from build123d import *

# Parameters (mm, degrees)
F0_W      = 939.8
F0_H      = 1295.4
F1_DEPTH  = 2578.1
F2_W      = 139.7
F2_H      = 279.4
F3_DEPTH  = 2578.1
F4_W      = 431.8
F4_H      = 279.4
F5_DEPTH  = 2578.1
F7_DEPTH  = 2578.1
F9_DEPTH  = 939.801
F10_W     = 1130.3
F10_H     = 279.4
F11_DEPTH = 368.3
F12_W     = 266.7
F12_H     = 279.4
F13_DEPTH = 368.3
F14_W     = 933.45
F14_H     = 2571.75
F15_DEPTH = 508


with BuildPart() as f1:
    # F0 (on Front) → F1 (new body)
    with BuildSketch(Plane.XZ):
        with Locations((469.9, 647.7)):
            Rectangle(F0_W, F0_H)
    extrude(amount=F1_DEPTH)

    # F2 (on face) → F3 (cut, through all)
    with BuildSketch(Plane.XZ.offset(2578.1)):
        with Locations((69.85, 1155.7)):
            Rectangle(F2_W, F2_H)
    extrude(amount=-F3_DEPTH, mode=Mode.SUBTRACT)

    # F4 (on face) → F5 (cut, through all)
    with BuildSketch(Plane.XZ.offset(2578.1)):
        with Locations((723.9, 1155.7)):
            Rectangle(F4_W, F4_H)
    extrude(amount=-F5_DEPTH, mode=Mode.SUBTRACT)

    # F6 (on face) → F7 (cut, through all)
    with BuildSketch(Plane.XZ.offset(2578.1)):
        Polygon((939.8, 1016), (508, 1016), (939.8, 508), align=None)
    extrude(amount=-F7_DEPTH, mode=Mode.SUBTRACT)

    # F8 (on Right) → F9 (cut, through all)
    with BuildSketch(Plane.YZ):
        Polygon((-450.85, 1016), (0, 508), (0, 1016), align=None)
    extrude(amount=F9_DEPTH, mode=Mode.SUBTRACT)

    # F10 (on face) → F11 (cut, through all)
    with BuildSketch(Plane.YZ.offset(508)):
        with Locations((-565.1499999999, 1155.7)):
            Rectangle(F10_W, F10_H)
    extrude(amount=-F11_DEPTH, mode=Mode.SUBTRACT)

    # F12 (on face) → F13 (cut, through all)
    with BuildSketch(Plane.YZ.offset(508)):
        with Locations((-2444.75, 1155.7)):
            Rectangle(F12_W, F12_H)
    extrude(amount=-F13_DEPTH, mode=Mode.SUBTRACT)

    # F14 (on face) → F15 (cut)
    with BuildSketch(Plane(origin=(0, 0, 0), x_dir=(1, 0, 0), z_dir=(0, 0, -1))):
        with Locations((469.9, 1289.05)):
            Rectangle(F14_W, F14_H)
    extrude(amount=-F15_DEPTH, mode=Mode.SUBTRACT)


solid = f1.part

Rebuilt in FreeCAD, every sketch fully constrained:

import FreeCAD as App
import Part
import Sketcher

V = App.Vector
Q = App.Units.Quantity

doc = App.newDocument("Part")
body = doc.addObject("PartDesign::Body", "Body")

# Sketch on XZ plane
sketch1 = body.newObject("Sketcher::SketchObject", "Sketch")
sketch1.AttachmentSupport = (doc.getObject("XZ_Plane"), [""])
sketch1.MapMode = "FlatFace"
sketch1.addGeometry(Part.LineSegment(V(0, 1295, 0), V(0, 0, 0)), False)
sketch1.addGeometry(Part.LineSegment(V(0, 0, 0), V(940, 0, 0)), False)
sketch1.addGeometry(Part.LineSegment(V(940, 0, 0), V(940, 1295, 0)), False)
sketch1.addGeometry(Part.LineSegment(V(940, 1295, 0), V(0, 1295, 0)), False)
sketch1.addConstraint(Sketcher.Constraint("Coincident", 0, 2, 1, 1))
sketch1.addConstraint(Sketcher.Constraint("Coincident", 1, 2, 2, 1))
sketch1.addConstraint(Sketcher.Constraint("Coincident", 2, 2, 3, 1))
sketch1.addConstraint(Sketcher.Constraint("Coincident", 3, 2, 0, 1))
sketch1.addConstraint(Sketcher.Constraint("Vertical", 0))
sketch1.addConstraint(Sketcher.Constraint("Horizontal", 1))
sketch1.addConstraint(Sketcher.Constraint("Vertical", 2))
sketch1.addConstraint(Sketcher.Constraint("Horizontal", 3))
sketch1.addConstraint(Sketcher.Constraint("Coincident", 0, 2, -1, 1))
sketch1.addConstraint(Sketcher.Constraint("DistanceX", 1, 1, 1, 2, Q("37 in")))
sketch1.addConstraint(Sketcher.Constraint("DistanceY", 0, 2, 0, 1, Q("51 in")))
pad1 = body.newObject("PartDesign::Pad", "Pad")
pad1.Profile = sketch1
pad1.Length = Q("101.5 in")

# Sketch on XZ plane
sketch2 = body.newObject("Sketcher::SketchObject", "Sketch001")
sketch2.AttachmentSupport = (doc.getObject("XZ_Plane"), [""])
sketch2.MapMode = "FlatFace"
sketch2.AttachmentOffset = App.Placement(V(0, 0, 101.5 * 25.4), App.Rotation())
sketch2.addGeometry(Part.LineSegment(V(0, 1295, 0), V(0, 1016, 0)), False)
sketch2.addGeometry(Part.LineSegment(V(0, 1016, 0), V(140, 1016, 0)), False)
sketch2.addGeometry(Part.LineSegment(V(140, 1016, 0), V(140, 1295, 0)), False)
sketch2.addGeometry(Part.LineSegment(V(140, 1295, 0), V(0, 1295, 0)), False)
sketch2.addConstraint(Sketcher.Constraint("Coincident", 0, 2, 1, 1))
sketch2.addConstraint(Sketcher.Constraint("Coincident", 1, 2, 2, 1))
sketch2.addConstraint(Sketcher.Constraint("Coincident", 2, 2, 3, 1))
sketch2.addConstraint(Sketcher.Constraint("Coincident", 3, 2, 0, 1))
sketch2.addConstraint(Sketcher.Constraint("Vertical", 0))
sketch2.addConstraint(Sketcher.Constraint("Horizontal", 1))
sketch2.addConstraint(Sketcher.Constraint("Vertical", 2))
sketch2.addConstraint(Sketcher.Constraint("Horizontal", 3))
sketch2.addConstraint(Sketcher.Constraint("PointOnObject", 0, 2, -2))
sketch2.addConstraint(Sketcher.Constraint("DistanceY", 0, 2, 0, 1, Q("11 in")))
sketch2.addConstraint(Sketcher.Constraint("DistanceX", 1, 1, 1, 2, Q("5.5 in")))
sketch2.addConstraint(Sketcher.Constraint("DistanceY", -1, 1, 0, 2, Q("40 in")))
pocket1 = body.newObject("PartDesign::Pocket", "Pocket")
pocket1.Profile = sketch2
pocket1.Type = "ThroughAll"

# Sketch on XZ plane
sketch3 = body.newObject("Sketcher::SketchObject", "Sketch002")
sketch3.AttachmentSupport = (doc.getObject("XZ_Plane"), [""])
sketch3.MapMode = "FlatFace"
sketch3.AttachmentOffset = App.Placement(V(0, 0, 101.5 * 25.4), App.Rotation())
sketch3.addGeometry(Part.LineSegment(V(508, 1295, 0), V(508, 1016, 0)), False)
sketch3.addGeometry(Part.LineSegment(V(508, 1016, 0), V(940, 1016, 0)), False)
sketch3.addGeometry(Part.LineSegment(V(940, 1016, 0), V(940, 1295, 0)), False)
sketch3.addGeometry(Part.LineSegment(V(940, 1295, 0), V(508, 1295, 0)), False)
sketch3.addConstraint(Sketcher.Constraint("Coincident", 0, 2, 1, 1))
sketch3.addConstraint(Sketcher.Constraint("Coincident", 1, 2, 2, 1))
sketch3.addConstraint(Sketcher.Constraint("Coincident", 2, 2, 3, 1))
sketch3.addConstraint(Sketcher.Constraint("Coincident", 3, 2, 0, 1))
sketch3.addConstraint(Sketcher.Constraint("Vertical", 0))
sketch3.addConstraint(Sketcher.Constraint("Horizontal", 1))
sketch3.addConstraint(Sketcher.Constraint("Vertical", 2))
sketch3.addConstraint(Sketcher.Constraint("Horizontal", 3))
sketch3.addConstraint(Sketcher.Constraint("DistanceX", 1, 1, 1, 2, Q("17 in")))
sketch3.addConstraint(Sketcher.Constraint("DistanceY", 0, 2, 0, 1, Q("11 in")))
sketch3.addConstraint(Sketcher.Constraint("DistanceX", -1, 1, 0, 2, Q("20 in")))
sketch3.addConstraint(Sketcher.Constraint("DistanceY", -1, 1, 0, 2, Q("40 in")))
pocket2 = body.newObject("PartDesign::Pocket", "Pocket001")
pocket2.Profile = sketch3
pocket2.Type = "ThroughAll"

# Sketch on XZ plane
sketch4 = body.newObject("Sketcher::SketchObject", "Sketch003")
sketch4.AttachmentSupport = (doc.getObject("XZ_Plane"), [""])
sketch4.MapMode = "FlatFace"
sketch4.AttachmentOffset = App.Placement(V(0, 0, 101.5 * 25.4), App.Rotation())
sketch4.addGeometry(Part.LineSegment(V(940, 1016, 0), V(508, 1016, 0)), False)
sketch4.addGeometry(Part.LineSegment(V(508, 1016, 0), V(940, 508, 0)), False)
sketch4.addGeometry(Part.LineSegment(V(940, 508, 0), V(940, 1016, 0)), False)
sketch4.addConstraint(Sketcher.Constraint("Coincident", 0, 2, 1, 1))
sketch4.addConstraint(Sketcher.Constraint("Coincident", 1, 2, 2, 1))
sketch4.addConstraint(Sketcher.Constraint("Coincident", 2, 2, 0, 1))
sketch4.addConstraint(Sketcher.Constraint("Horizontal", 0))
sketch4.addConstraint(Sketcher.Constraint("Vertical", 2))
sketch4.addConstraint(Sketcher.Constraint("DistanceX", 0, 2, 0, 1, Q("17 in")))
sketch4.addConstraint(Sketcher.Constraint("DistanceY", 2, 1, 2, 2, Q("20 in")))
sketch4.addConstraint(Sketcher.Constraint("DistanceX", -1, 1, 0, 2, Q("20 in")))
sketch4.addConstraint(Sketcher.Constraint("DistanceY", -1, 1, 0, 2, Q("40 in")))
pocket3 = body.newObject("PartDesign::Pocket", "Pocket002")
pocket3.Profile = sketch4
pocket3.Type = "ThroughAll"

# Sketch on YZ plane
sketch5 = body.newObject("Sketcher::SketchObject", "Sketch004")
sketch5.AttachmentSupport = (doc.getObject("YZ_Plane"), [""])
sketch5.MapMode = "FlatFace"
sketch5.addGeometry(Part.LineSegment(V(-451, 1016, 0), V(0, 508, 0)), False)
sketch5.addGeometry(Part.LineSegment(V(0, 508, 0), V(0, 1016, 0)), False)
sketch5.addGeometry(Part.LineSegment(V(0, 1016, 0), V(-451, 1016, 0)), False)
sketch5.addConstraint(Sketcher.Constraint("Coincident", 0, 2, 1, 1))
sketch5.addConstraint(Sketcher.Constraint("Coincident", 1, 2, 2, 1))
sketch5.addConstraint(Sketcher.Constraint("Coincident", 2, 2, 0, 1))
sketch5.addConstraint(Sketcher.Constraint("Vertical", 1))
sketch5.addConstraint(Sketcher.Constraint("Horizontal", 2))
sketch5.addConstraint(Sketcher.Constraint("PointOnObject", 0, 2, -2))
sketch5.addConstraint(Sketcher.Constraint("DistanceY", 1, 1, 1, 2, Q("20 in")))
sketch5.addConstraint(Sketcher.Constraint("DistanceY", -1, 1, 0, 2, Q("20 in")))
sketch5.addConstraint(Sketcher.Constraint("DistanceX", 2, 2, 2, 1, Q("17.75 in")))
pocket4 = body.newObject("PartDesign::Pocket", "Pocket003")
pocket4.Profile = sketch5
pocket4.Type = "ThroughAll"
pocket4.Reversed = True

# Sketch on YZ plane
sketch6 = body.newObject("Sketcher::SketchObject", "Sketch005")
sketch6.AttachmentSupport = (doc.getObject("YZ_Plane"), [""])
sketch6.MapMode = "FlatFace"
sketch6.AttachmentOffset = App.Placement(V(0, 0, 20 * 25.4), App.Rotation())
sketch6.addGeometry(Part.LineSegment(V(-1130, 1295, 0), V(-1130, 1016, 0)), False)
sketch6.addGeometry(Part.LineSegment(V(-1130, 1016, 0), V(0, 1016, 0)), False)
sketch6.addGeometry(Part.LineSegment(V(0, 1016, 0), V(0, 1295, 0)), False)
sketch6.addGeometry(Part.LineSegment(V(0, 1295, 0), V(-1130, 1295, 0)), False)
sketch6.addConstraint(Sketcher.Constraint("Coincident", 0, 2, 1, 1))
sketch6.addConstraint(Sketcher.Constraint("Coincident", 1, 2, 2, 1))
sketch6.addConstraint(Sketcher.Constraint("Coincident", 2, 2, 3, 1))
sketch6.addConstraint(Sketcher.Constraint("Coincident", 3, 2, 0, 1))
sketch6.addConstraint(Sketcher.Constraint("Vertical", 0))
sketch6.addConstraint(Sketcher.Constraint("Horizontal", 1))
sketch6.addConstraint(Sketcher.Constraint("Vertical", 2))
sketch6.addConstraint(Sketcher.Constraint("Horizontal", 3))
sketch6.addConstraint(Sketcher.Constraint("PointOnObject", 1, 2, -2))
sketch6.addConstraint(Sketcher.Constraint("DistanceY", 0, 2, 0, 1, Q("11 in")))
sketch6.addConstraint(Sketcher.Constraint("DistanceX", 1, 1, 1, 2, Q("44.5 in")))
sketch6.addConstraint(Sketcher.Constraint("DistanceY", -1, 1, 0, 2, Q("40 in")))
pocket5 = body.newObject("PartDesign::Pocket", "Pocket004")
pocket5.Profile = sketch6
pocket5.Type = "ThroughAll"

# Sketch on YZ plane
sketch7 = body.newObject("Sketcher::SketchObject", "Sketch006")
sketch7.AttachmentSupport = (doc.getObject("YZ_Plane"), [""])
sketch7.MapMode = "FlatFace"
sketch7.AttachmentOffset = App.Placement(V(0, 0, 20 * 25.4), App.Rotation())
sketch7.addGeometry(Part.LineSegment(V(-2578, 1295, 0), V(-2578, 1016, 0)), False)
sketch7.addGeometry(Part.LineSegment(V(-2578, 1016, 0), V(-2311, 1016, 0)), False)
sketch7.addGeometry(Part.LineSegment(V(-2311, 1016, 0), V(-2311, 1295, 0)), False)
sketch7.addGeometry(Part.LineSegment(V(-2311, 1295, 0), V(-2578, 1295, 0)), False)
sketch7.addConstraint(Sketcher.Constraint("Coincident", 0, 2, 1, 1))
sketch7.addConstraint(Sketcher.Constraint("Coincident", 1, 2, 2, 1))
sketch7.addConstraint(Sketcher.Constraint("Coincident", 2, 2, 3, 1))
sketch7.addConstraint(Sketcher.Constraint("Coincident", 3, 2, 0, 1))
sketch7.addConstraint(Sketcher.Constraint("Vertical", 0))
sketch7.addConstraint(Sketcher.Constraint("Horizontal", 1))
sketch7.addConstraint(Sketcher.Constraint("Vertical", 2))
sketch7.addConstraint(Sketcher.Constraint("Horizontal", 3))
sketch7.addConstraint(Sketcher.Constraint("DistanceY", 0, 2, 0, 1, Q("11 in")))
sketch7.addConstraint(Sketcher.Constraint("DistanceX", 1, 1, 1, 2, Q("10.5 in")))
sketch7.addConstraint(Sketcher.Constraint("DistanceY", -1, 1, 0, 2, Q("40 in")))
sketch7.addConstraint(Sketcher.Constraint("DistanceX", 1, 2, -1, 1, Q("91 in")))
pocket6 = body.newObject("PartDesign::Pocket", "Pocket005")
pocket6.Profile = sketch7
pocket6.Type = "ThroughAll"

# Sketch on XY plane
sketch8 = body.newObject("Sketcher::SketchObject", "Sketch007")
sketch8.AttachmentSupport = (doc.getObject("XY_Plane"), [""])
sketch8.MapMode = "FlatFace"
sketch8.addGeometry(Part.LineSegment(V(3, -2575, 0), V(3, -3, 0)), False)
sketch8.addGeometry(Part.LineSegment(V(3, -3, 0), V(937, -3, 0)), False)
sketch8.addGeometry(Part.LineSegment(V(937, -3, 0), V(937, -2575, 0)), False)
sketch8.addGeometry(Part.LineSegment(V(937, -2575, 0), V(3, -2575, 0)), False)
sketch8.addConstraint(Sketcher.Constraint("Coincident", 0, 2, 1, 1))
sketch8.addConstraint(Sketcher.Constraint("Coincident", 1, 2, 2, 1))
sketch8.addConstraint(Sketcher.Constraint("Coincident", 2, 2, 3, 1))
sketch8.addConstraint(Sketcher.Constraint("Coincident", 3, 2, 0, 1))
sketch8.addConstraint(Sketcher.Constraint("Vertical", 0))
sketch8.addConstraint(Sketcher.Constraint("Horizontal", 1))
sketch8.addConstraint(Sketcher.Constraint("Vertical", 2))
sketch8.addConstraint(Sketcher.Constraint("Horizontal", 3))
sketch8.addConstraint(Sketcher.Constraint("DistanceX", 1, 1, 1, 2, Q("36.75 in")))
sketch8.addConstraint(Sketcher.Constraint("DistanceY", 0, 1, 0, 2, Q("101.25 in")))
sketch8.addConstraint(Sketcher.Constraint("DistanceX", -1, 1, 0, 2, Q("0.125 in")))
sketch8.addConstraint(Sketcher.Constraint("DistanceY", 0, 2, -1, 1, Q("0.125 in")))
pocket7 = body.newObject("PartDesign::Pocket", "Pocket006")
pocket7.Profile = sketch8
pocket7.Length = Q("20 in")
pocket7.Reversed = True

doc.recompute()
